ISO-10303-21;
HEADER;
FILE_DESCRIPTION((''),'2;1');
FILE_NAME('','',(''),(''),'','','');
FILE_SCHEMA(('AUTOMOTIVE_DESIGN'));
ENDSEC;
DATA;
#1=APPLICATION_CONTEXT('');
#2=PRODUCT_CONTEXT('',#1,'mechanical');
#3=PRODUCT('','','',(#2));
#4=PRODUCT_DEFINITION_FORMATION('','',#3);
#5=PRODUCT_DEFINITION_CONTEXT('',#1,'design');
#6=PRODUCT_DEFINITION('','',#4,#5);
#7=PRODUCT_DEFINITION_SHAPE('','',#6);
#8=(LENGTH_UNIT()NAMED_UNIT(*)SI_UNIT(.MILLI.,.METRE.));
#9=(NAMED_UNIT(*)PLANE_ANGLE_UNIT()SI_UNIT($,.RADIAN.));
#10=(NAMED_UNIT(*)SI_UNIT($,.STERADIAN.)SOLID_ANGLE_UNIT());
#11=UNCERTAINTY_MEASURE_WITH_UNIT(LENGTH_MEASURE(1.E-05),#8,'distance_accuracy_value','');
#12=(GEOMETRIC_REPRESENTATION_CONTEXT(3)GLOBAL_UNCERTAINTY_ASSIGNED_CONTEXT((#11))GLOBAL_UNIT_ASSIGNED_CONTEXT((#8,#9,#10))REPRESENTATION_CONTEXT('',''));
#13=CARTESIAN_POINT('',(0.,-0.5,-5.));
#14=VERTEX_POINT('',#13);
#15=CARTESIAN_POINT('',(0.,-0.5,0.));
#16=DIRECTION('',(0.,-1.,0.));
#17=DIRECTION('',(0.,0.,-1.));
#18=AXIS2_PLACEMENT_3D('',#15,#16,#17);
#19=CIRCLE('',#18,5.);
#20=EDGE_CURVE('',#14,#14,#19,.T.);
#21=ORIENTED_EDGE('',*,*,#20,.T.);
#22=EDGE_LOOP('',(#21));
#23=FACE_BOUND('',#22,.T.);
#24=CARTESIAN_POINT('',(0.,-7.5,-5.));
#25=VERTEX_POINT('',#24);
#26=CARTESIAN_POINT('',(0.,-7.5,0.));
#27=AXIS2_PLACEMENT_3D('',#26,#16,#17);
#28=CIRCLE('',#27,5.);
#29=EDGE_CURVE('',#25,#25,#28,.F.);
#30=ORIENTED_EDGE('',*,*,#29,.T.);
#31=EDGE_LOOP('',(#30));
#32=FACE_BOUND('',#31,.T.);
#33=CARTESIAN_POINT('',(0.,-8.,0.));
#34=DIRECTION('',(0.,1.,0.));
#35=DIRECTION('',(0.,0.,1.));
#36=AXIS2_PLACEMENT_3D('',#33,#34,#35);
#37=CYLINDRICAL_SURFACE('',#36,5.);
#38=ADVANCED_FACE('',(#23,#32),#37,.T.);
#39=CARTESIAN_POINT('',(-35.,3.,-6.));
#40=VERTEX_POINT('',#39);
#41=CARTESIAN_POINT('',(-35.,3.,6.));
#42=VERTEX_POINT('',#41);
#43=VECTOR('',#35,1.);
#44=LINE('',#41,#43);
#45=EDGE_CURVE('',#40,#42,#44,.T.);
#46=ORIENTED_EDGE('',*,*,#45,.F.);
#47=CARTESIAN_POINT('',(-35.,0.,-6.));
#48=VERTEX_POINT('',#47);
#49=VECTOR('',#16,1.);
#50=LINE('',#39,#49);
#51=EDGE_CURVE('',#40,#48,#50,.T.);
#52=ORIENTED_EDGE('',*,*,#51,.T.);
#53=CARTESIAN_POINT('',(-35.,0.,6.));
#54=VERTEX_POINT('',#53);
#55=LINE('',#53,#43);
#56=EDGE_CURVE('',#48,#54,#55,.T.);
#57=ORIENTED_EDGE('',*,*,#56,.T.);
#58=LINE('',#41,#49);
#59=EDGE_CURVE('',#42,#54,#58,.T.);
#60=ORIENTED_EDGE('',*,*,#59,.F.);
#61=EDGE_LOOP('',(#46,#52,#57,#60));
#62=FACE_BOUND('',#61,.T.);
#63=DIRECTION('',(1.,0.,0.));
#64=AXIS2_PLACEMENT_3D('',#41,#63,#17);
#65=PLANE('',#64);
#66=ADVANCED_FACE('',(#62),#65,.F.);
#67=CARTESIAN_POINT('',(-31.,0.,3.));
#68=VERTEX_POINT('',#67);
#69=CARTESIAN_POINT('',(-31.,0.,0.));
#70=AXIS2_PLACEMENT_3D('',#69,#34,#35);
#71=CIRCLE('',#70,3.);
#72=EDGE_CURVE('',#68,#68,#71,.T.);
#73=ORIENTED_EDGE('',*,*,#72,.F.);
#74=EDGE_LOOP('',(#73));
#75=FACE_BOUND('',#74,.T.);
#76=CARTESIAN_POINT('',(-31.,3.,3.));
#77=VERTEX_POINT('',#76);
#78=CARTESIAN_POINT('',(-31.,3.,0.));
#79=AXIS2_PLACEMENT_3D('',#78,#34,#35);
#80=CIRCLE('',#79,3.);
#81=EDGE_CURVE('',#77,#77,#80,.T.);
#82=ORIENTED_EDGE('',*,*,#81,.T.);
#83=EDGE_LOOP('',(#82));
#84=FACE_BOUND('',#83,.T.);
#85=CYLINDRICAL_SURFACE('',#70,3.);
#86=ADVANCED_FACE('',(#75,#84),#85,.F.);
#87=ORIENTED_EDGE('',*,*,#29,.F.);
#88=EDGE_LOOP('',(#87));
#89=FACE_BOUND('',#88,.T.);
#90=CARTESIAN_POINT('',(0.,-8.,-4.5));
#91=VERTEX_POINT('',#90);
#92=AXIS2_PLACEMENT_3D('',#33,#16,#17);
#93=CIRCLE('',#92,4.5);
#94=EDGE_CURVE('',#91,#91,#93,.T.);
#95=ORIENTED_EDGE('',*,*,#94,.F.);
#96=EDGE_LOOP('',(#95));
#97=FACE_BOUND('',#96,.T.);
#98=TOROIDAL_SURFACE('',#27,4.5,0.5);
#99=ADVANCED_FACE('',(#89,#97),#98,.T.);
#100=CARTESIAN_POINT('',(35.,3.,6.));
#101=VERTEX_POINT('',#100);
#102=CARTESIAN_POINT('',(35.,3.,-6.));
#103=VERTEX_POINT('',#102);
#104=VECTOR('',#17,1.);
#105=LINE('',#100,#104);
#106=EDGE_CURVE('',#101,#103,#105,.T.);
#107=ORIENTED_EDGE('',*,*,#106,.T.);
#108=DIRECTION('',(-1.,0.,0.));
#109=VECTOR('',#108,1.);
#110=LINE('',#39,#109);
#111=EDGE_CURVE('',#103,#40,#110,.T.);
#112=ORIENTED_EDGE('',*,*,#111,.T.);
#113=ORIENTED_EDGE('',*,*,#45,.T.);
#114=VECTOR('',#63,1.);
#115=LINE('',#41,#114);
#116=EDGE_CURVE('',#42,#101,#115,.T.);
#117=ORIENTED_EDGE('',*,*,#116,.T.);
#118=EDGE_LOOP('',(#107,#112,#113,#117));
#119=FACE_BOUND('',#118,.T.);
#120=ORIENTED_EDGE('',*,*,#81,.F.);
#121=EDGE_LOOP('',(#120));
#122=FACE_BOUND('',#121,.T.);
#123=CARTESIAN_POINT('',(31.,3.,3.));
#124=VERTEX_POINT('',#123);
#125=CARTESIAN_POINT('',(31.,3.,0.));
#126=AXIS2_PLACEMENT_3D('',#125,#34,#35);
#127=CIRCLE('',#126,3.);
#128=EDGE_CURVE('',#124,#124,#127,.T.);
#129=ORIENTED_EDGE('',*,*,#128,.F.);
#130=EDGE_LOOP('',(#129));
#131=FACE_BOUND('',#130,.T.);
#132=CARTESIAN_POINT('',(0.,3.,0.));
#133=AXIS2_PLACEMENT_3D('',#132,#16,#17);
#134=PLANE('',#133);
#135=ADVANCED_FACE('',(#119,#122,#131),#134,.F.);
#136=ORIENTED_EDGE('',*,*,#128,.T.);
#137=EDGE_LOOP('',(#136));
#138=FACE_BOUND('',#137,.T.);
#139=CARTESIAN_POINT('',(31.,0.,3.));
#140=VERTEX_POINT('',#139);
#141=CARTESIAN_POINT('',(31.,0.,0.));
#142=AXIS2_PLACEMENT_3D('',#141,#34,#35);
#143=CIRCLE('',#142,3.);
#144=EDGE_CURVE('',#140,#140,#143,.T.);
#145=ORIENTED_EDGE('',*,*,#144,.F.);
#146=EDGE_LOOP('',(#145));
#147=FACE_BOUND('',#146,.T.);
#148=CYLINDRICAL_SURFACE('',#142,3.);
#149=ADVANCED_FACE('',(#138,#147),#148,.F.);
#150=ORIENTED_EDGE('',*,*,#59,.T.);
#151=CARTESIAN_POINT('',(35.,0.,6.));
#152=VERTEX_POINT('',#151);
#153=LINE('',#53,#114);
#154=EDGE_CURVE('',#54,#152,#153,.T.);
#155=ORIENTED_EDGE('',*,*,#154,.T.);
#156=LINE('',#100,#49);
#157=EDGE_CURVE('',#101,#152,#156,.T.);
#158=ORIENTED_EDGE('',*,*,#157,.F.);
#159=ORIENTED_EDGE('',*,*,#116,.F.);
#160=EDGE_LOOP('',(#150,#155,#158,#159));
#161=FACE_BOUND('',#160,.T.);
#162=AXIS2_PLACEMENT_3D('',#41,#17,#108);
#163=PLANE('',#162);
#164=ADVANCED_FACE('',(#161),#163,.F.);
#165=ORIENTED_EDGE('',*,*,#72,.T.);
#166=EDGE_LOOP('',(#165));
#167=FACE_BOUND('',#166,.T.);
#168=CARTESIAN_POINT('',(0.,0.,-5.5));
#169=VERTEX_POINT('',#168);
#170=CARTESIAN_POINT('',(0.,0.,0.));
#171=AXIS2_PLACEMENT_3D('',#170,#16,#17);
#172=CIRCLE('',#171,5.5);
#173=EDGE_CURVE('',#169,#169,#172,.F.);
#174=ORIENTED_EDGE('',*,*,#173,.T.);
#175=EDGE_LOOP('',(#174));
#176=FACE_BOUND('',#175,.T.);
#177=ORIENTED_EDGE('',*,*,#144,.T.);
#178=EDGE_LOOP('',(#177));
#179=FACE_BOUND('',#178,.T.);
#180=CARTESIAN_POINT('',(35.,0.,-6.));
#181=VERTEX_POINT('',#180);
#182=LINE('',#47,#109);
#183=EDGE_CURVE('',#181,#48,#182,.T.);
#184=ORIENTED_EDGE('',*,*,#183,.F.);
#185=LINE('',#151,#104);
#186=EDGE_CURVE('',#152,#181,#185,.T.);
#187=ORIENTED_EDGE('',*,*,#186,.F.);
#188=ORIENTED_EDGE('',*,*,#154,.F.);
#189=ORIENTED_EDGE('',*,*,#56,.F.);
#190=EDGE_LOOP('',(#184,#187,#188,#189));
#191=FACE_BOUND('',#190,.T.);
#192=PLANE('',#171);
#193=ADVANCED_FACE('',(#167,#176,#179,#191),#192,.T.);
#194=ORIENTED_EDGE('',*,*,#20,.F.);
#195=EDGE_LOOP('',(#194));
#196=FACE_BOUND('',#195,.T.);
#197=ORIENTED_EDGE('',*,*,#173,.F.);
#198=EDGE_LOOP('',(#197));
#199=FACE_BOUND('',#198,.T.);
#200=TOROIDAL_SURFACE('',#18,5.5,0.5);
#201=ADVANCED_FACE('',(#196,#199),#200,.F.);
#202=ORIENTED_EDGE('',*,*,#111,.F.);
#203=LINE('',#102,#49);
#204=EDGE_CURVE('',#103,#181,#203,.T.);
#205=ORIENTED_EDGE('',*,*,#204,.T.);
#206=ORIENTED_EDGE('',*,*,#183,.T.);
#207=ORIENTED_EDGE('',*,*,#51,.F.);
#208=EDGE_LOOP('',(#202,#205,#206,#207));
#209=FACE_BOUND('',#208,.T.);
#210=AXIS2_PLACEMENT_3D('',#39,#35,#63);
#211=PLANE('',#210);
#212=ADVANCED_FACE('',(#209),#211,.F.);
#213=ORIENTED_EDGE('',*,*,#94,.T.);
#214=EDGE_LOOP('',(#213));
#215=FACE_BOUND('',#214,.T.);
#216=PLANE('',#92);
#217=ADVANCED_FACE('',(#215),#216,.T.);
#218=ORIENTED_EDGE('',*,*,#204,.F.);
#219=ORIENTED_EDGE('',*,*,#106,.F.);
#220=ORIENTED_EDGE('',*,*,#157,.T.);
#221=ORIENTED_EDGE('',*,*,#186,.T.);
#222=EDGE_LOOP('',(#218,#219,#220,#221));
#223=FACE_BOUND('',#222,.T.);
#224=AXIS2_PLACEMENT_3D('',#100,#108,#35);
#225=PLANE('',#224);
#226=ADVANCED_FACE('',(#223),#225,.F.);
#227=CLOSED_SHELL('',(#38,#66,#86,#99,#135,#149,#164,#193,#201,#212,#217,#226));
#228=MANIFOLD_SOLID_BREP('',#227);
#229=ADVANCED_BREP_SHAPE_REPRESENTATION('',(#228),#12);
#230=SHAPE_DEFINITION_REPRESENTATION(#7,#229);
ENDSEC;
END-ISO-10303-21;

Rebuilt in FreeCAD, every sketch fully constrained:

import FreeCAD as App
import Part
import Sketcher
from FreeCAD import Vector
Q = App.Units.Quantity


def edges_at(feature, points):
    """Names of the edges that pass closest to the given points."""
    edges = feature.Shape.Edges
    near = lambda p: min(range(len(edges)), key=lambda i: edges[i].distToShape(Part.Vertex(*p))[0])
    return sorted({f"Edge{near(p) + 1}" for p in points})


def add_polygon(sketch, points):
    """Adds a closed chain of lines whose ends are joined by coincident constraints."""
    first, n = sketch.GeometryCount, len(points)
    for a, b in zip(points, points[1:] + points[:1]):
        sketch.addGeometry(Part.LineSegment(App.Vector(*a, 0), App.Vector(*b, 0)), False)
    for i in range(n):
        sketch.addConstraint(Sketcher.Constraint("Coincident", first + i, 2, first + (i + 1) % n, 1))

doc = App.newDocument("Part")
body = doc.addObject("PartDesign::Body", "Body")

sketch1 = body.newObject("Sketcher::SketchObject", "Sketch")
sketch1.AttachmentSupport = (doc.getObject("XZ_Plane"), [""])
sketch1.MapMode = "FlatFace"
add_polygon(sketch1, [(-35, -6), (-35, 6), (35, 6), (35, -6)])
sketch1.addConstraint(Sketcher.Constraint("Vertical", 0))
sketch1.addConstraint(Sketcher.Constraint("Horizontal", 1))
sketch1.addConstraint(Sketcher.Constraint("Vertical", 2))
sketch1.addConstraint(Sketcher.Constraint("Horizontal", 3))
sketch1.addConstraint(Sketcher.Constraint("Symmetric", 0, 2, 2, 2, -1, 1))
sketch1.addConstraint(Sketcher.Constraint("DistanceX", 1, 1, 1, 2, Q("70 mm")))
sketch1.addConstraint(Sketcher.Constraint("DistanceY", 0, 1, 0, 2, Q("12 mm")))
pad1 = body.newObject("PartDesign::Pad", "Pad")
pad1.Profile = sketch1
pad1.Length = 3
pad1.Reversed = True

sketch2 = body.newObject("Sketcher::SketchObject", "Sketch001")
sketch2.AttachmentSupport = (doc.getObject("XZ_Plane"), [""])
sketch2.MapMode = "FlatFace"
sketch2.AttachmentOffset = App.Placement(Vector(0, 0, -3), App.Rotation())
sketch2.addGeometry(Part.Circle(Vector(-31, 0, 0), Vector(0, 0, 1), 3), False)
sketch2.addGeometry(Part.Circle(Vector(31, 0, 0), Vector(0, 0, 1), 3), False)
sketch2.addConstraint(Sketcher.Constraint("Equal", 0, 1))
sketch2.addConstraint(Sketcher.Constraint("Symmetric", 0, 3, 1, 3, -1, 1))
sketch2.addConstraint(Sketcher.Constraint("PointOnObject", 0, 3, -1))
sketch2.addConstraint(Sketcher.Constraint("Diameter", 0, Q("6 mm")))
sketch2.addConstraint(Sketcher.Constraint("DistanceX", 0, 3, -1, 1, Q("31 mm")))
pocket1 = body.newObject("PartDesign::Pocket", "Pocket")
pocket1.Profile = sketch2
pocket1.Type = "ThroughAll"
pocket1.Reversed = True

sketch3 = body.newObject("Sketcher::SketchObject", "Sketch002")
sketch3.AttachmentSupport = (doc.getObject("XZ_Plane"), [""])
sketch3.MapMode = "FlatFace"
sketch3.addGeometry(Part.Circle(Vector(0, 0, 0), Vector(0, 0, 1), 5), False)
sketch3.addConstraint(Sketcher.Constraint("Coincident", 0, 3, -1, 1))
sketch3.addConstraint(Sketcher.Constraint("Diameter", 0, Q("10 mm")))
pad2 = body.newObject("PartDesign::Pad", "Pad001")
pad2.Profile = sketch3
pad2.Length = 8
doc.recompute()

fillet = body.newObject("PartDesign::Fillet", "Fillet")
fillet.Base = (pad2, edges_at(pad2, [(0, 0, 5), (0, -8, 5)]))
fillet.Radius = 0.5

doc.recompute()
